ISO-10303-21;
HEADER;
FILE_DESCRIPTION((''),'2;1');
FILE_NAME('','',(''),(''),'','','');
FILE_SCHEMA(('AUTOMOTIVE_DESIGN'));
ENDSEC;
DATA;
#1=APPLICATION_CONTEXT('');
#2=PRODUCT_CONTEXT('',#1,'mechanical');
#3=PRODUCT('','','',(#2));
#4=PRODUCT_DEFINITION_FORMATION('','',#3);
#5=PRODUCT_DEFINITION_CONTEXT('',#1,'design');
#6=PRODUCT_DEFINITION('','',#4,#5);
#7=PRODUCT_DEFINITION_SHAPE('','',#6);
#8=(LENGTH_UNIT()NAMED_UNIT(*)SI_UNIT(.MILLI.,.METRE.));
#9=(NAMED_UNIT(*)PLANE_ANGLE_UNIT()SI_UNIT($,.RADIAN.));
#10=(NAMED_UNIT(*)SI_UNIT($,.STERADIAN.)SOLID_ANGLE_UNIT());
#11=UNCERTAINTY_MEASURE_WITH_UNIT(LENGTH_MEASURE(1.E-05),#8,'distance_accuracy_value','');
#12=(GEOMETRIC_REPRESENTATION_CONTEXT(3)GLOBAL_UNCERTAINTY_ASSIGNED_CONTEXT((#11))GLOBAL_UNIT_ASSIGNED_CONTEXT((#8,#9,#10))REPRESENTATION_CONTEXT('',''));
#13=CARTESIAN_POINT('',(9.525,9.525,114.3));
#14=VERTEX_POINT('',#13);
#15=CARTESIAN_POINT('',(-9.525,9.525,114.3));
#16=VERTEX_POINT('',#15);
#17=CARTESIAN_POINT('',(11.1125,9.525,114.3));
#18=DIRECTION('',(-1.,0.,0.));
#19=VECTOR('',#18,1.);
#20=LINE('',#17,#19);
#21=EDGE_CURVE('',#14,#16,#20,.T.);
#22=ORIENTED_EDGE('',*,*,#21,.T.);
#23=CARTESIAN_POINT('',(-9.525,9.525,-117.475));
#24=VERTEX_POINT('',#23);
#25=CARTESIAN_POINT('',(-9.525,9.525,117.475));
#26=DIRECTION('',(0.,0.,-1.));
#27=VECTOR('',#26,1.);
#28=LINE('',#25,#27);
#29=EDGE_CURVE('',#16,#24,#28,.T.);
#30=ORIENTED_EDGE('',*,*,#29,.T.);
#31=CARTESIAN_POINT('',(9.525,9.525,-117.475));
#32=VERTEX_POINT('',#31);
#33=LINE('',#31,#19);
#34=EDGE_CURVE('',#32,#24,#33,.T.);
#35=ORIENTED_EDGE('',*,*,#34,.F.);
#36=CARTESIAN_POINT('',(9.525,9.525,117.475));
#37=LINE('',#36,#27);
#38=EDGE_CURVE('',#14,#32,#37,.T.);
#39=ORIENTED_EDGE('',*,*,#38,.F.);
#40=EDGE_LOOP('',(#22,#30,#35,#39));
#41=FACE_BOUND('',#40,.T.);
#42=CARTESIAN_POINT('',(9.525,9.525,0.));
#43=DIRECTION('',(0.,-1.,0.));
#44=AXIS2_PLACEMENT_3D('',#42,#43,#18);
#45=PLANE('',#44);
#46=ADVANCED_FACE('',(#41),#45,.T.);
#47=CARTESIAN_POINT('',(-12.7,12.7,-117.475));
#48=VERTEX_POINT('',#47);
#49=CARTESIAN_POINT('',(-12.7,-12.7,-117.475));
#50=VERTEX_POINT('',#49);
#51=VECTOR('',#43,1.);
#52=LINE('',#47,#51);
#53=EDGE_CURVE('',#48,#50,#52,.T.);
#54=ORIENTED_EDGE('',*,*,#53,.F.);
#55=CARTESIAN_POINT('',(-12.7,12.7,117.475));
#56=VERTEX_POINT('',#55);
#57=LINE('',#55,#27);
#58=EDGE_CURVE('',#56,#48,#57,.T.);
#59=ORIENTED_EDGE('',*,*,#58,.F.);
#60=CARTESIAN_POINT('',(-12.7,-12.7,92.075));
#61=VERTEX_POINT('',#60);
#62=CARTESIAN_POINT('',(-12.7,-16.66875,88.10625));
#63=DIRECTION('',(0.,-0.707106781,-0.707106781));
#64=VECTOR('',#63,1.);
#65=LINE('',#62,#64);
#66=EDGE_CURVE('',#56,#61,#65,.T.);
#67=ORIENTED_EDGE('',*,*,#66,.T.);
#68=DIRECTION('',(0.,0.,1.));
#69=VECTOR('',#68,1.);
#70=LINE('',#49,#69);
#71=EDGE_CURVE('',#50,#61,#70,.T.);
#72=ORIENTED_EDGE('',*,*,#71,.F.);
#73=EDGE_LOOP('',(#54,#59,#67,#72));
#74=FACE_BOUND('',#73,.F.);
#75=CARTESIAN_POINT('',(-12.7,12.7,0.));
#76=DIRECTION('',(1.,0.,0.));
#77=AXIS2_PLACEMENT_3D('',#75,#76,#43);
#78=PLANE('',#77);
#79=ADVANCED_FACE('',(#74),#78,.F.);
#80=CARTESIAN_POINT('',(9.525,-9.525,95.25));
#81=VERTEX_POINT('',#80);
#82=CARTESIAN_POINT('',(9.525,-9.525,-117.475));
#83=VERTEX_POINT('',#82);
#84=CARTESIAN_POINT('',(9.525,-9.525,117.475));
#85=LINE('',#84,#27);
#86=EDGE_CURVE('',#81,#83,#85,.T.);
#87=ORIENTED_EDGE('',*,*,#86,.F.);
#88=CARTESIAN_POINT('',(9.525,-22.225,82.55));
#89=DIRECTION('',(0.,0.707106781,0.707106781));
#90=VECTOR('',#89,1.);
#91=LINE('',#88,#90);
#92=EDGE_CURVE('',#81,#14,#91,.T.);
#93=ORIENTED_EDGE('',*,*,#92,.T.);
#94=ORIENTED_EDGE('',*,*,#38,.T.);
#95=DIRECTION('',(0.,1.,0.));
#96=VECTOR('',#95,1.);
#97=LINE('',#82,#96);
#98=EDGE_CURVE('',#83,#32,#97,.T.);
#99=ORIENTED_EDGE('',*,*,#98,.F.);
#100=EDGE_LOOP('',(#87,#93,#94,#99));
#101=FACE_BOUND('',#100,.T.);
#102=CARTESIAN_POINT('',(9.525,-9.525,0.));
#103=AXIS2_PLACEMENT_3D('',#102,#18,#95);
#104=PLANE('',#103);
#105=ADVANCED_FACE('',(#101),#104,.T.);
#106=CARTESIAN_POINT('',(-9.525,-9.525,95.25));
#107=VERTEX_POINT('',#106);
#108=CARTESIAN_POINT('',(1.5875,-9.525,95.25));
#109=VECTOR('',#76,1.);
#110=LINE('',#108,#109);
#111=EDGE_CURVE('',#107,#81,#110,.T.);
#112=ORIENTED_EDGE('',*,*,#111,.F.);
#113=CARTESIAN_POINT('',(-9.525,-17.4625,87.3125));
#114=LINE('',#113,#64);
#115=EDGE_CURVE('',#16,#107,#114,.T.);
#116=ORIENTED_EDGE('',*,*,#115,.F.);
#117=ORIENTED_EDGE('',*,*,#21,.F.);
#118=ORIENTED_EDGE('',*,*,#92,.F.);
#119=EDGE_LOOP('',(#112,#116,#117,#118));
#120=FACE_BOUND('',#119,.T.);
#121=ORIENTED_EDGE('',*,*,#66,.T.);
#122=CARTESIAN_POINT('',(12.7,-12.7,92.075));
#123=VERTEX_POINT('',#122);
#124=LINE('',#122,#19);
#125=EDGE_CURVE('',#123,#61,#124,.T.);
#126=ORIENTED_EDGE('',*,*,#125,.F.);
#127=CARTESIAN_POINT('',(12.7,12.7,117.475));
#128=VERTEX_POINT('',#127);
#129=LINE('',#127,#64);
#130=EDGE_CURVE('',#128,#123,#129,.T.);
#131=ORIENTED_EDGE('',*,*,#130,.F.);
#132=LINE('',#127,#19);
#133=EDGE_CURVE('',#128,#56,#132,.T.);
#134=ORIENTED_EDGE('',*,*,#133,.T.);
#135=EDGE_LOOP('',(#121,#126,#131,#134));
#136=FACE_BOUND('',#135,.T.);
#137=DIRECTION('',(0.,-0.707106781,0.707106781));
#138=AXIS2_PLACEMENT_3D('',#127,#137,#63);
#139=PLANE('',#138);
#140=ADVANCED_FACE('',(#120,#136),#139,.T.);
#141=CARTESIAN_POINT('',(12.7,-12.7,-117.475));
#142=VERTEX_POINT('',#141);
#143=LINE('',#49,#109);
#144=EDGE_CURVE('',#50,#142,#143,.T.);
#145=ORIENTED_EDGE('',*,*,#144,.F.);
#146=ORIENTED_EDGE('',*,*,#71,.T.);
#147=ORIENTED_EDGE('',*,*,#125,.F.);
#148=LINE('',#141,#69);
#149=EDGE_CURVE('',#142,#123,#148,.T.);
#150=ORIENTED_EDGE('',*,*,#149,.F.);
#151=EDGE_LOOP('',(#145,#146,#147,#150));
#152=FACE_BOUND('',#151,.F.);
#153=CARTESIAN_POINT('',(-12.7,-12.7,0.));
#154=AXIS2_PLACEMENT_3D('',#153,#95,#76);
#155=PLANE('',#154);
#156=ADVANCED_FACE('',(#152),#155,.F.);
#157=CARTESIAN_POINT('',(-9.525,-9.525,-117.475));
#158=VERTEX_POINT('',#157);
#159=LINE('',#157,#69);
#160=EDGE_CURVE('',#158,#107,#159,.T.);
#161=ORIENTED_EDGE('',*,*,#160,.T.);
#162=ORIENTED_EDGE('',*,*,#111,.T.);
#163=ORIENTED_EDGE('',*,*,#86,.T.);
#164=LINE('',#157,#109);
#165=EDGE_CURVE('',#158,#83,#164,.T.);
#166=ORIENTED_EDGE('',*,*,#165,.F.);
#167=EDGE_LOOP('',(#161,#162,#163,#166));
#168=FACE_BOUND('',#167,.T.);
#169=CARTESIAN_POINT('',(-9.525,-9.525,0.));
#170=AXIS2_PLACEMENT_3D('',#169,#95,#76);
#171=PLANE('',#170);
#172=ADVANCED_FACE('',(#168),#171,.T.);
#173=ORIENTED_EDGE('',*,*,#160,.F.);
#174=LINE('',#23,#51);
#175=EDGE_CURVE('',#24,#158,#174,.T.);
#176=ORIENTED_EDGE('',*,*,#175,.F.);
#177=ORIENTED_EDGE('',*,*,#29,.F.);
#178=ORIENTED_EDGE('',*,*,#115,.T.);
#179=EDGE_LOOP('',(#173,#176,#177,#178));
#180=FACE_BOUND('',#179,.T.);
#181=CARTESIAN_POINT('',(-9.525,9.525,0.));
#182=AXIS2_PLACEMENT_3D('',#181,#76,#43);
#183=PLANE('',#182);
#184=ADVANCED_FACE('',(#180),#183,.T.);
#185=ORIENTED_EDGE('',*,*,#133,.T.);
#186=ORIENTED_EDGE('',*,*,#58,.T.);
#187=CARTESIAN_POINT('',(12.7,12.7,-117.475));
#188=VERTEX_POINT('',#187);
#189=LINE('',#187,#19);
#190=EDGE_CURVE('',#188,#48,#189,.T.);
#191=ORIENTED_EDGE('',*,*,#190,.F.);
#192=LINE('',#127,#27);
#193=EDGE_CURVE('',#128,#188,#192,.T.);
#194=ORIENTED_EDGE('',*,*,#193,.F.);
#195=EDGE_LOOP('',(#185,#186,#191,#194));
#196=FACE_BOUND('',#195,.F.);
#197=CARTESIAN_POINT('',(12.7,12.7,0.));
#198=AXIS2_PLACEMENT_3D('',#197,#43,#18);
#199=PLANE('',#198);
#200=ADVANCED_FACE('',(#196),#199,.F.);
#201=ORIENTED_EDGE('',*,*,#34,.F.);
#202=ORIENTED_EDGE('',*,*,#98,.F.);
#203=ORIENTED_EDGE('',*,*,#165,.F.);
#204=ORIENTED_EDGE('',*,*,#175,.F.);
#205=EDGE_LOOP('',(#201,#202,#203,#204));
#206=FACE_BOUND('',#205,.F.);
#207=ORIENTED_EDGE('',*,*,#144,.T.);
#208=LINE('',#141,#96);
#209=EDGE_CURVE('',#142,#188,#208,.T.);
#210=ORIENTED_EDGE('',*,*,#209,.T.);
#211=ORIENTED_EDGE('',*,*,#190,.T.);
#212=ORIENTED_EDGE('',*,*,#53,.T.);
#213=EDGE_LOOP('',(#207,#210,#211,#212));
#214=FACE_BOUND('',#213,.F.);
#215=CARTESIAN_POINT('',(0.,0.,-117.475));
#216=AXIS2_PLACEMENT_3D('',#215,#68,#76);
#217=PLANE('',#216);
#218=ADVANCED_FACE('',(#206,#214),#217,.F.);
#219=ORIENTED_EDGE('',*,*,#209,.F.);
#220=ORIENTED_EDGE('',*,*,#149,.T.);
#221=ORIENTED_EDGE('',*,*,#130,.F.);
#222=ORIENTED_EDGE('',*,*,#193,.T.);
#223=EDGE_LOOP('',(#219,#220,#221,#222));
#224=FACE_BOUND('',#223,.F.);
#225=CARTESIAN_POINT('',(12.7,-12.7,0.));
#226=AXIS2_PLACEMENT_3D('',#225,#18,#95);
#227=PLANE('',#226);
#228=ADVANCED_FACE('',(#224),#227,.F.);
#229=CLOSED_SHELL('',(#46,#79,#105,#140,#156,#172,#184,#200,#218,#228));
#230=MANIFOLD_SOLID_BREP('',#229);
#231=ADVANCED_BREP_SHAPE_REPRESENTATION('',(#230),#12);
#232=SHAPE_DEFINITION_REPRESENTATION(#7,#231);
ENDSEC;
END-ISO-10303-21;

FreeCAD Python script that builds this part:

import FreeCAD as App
import Part
import Sketcher
Q = App.Units.Quantity


def add_polygon(sketch, points):
    """Adds a closed chain of lines whose ends are joined by coincident constraints."""
    first, n = sketch.GeometryCount, len(points)
    for a, b in zip(points, points[1:] + points[:1]):
        sketch.addGeometry(Part.LineSegment(App.Vector(*a, 0), App.Vector(*b, 0)), False)
    for i in range(n):
        sketch.addConstraint(Sketcher.Constraint("Coincident", first + i, 2, first + (i + 1) % n, 1))

doc = App.newDocument("Part")
body = doc.addObject("PartDesign::Body", "Body")

# Sketch on XY plane
sketch1 = doc.addObject("Sketcher::SketchObject", "Sketch")
body.addObject(sketch1)
sketch1.AttachmentSupport = (doc.XY_Plane, [""])
sketch1.MapMode = "FlatFace"
add_polygon(sketch1, [(-12.7, 12.7), (-12.7, -12.7), (12.7, -12.7), (12.7, 12.7)])  # lines 0-3
add_polygon(sketch1, [(9.525, -9.525), (-9.525, -9.525), (-9.525, 9.525), (9.525, 9.525)])  # lines 4-7
sketch1.addConstraint([
    Sketcher.Constraint("Vertical", 0),
    Sketcher.Constraint("Horizontal", 1),
    Sketcher.Constraint("Vertical", 2),
    Sketcher.Constraint("Horizontal", 3),
    Sketcher.Constraint("Horizontal", 4),
    Sketcher.Constraint("Vertical", 5),
    Sketcher.Constraint("Horizontal", 6),
    Sketcher.Constraint("Vertical", 7),
    Sketcher.Constraint("Symmetric", 0, 2, 2, 2, -1, 1),
    Sketcher.Constraint("Symmetric", 4, 2, 6, 2, -1, 1),
    Sketcher.Constraint("Equal", 3, 0),
    Sketcher.Constraint("Equal", 6, 5),
    Sketcher.Constraint("DistanceX", 1, 1, 1, 2, Q("1 in")),
    Sketcher.Constraint("DistanceX", 0, 2, 4, 2, Q("0.125 in")),
])
pad1 = doc.addObject("PartDesign::Pad", "Pad")
body.addObject(pad1)
pad1.Profile = sketch1
pad1.Length = Q("9.25 in")
pad1.Midplane = True

# Sketch on YZ plane
sketch2 = doc.addObject("Sketcher::SketchObject", "Sketch001")
body.addObject(sketch2)
sketch2.AttachmentSupport = (doc.YZ_Plane, [""])
sketch2.MapMode = "FlatFace"
sketch2.AttachmentOffset = App.Placement(App.Vector(0, 0, 0.5 * 25.4), App.Rotation())
add_polygon(sketch2, [(-12.7, 92.075), (12.7, 117.475), (-12.7, 117.475)])  # lines 0-2
sketch2.addConstraint([
    Sketcher.Constraint("Horizontal", 1),
    Sketcher.Constraint("Vertical", 2),
    Sketcher.Constraint("Equal", 1, 2),
    Sketcher.Constraint("DistanceX", 1, 2, 1, 1, Q("1 in")),
    Sketcher.Constraint("DistanceX", -1, 1, 0, 2, Q("0.5 in")),
    Sketcher.Constraint("DistanceY", -1, 1, 0, 2, Q("4.625 in")),
])
pocket1 = doc.addObject("PartDesign::Pocket", "Pocket")
body.addObject(pocket1)
pocket1.Profile = sketch2
pocket1.Type = "ThroughAll"

doc.recompute()
